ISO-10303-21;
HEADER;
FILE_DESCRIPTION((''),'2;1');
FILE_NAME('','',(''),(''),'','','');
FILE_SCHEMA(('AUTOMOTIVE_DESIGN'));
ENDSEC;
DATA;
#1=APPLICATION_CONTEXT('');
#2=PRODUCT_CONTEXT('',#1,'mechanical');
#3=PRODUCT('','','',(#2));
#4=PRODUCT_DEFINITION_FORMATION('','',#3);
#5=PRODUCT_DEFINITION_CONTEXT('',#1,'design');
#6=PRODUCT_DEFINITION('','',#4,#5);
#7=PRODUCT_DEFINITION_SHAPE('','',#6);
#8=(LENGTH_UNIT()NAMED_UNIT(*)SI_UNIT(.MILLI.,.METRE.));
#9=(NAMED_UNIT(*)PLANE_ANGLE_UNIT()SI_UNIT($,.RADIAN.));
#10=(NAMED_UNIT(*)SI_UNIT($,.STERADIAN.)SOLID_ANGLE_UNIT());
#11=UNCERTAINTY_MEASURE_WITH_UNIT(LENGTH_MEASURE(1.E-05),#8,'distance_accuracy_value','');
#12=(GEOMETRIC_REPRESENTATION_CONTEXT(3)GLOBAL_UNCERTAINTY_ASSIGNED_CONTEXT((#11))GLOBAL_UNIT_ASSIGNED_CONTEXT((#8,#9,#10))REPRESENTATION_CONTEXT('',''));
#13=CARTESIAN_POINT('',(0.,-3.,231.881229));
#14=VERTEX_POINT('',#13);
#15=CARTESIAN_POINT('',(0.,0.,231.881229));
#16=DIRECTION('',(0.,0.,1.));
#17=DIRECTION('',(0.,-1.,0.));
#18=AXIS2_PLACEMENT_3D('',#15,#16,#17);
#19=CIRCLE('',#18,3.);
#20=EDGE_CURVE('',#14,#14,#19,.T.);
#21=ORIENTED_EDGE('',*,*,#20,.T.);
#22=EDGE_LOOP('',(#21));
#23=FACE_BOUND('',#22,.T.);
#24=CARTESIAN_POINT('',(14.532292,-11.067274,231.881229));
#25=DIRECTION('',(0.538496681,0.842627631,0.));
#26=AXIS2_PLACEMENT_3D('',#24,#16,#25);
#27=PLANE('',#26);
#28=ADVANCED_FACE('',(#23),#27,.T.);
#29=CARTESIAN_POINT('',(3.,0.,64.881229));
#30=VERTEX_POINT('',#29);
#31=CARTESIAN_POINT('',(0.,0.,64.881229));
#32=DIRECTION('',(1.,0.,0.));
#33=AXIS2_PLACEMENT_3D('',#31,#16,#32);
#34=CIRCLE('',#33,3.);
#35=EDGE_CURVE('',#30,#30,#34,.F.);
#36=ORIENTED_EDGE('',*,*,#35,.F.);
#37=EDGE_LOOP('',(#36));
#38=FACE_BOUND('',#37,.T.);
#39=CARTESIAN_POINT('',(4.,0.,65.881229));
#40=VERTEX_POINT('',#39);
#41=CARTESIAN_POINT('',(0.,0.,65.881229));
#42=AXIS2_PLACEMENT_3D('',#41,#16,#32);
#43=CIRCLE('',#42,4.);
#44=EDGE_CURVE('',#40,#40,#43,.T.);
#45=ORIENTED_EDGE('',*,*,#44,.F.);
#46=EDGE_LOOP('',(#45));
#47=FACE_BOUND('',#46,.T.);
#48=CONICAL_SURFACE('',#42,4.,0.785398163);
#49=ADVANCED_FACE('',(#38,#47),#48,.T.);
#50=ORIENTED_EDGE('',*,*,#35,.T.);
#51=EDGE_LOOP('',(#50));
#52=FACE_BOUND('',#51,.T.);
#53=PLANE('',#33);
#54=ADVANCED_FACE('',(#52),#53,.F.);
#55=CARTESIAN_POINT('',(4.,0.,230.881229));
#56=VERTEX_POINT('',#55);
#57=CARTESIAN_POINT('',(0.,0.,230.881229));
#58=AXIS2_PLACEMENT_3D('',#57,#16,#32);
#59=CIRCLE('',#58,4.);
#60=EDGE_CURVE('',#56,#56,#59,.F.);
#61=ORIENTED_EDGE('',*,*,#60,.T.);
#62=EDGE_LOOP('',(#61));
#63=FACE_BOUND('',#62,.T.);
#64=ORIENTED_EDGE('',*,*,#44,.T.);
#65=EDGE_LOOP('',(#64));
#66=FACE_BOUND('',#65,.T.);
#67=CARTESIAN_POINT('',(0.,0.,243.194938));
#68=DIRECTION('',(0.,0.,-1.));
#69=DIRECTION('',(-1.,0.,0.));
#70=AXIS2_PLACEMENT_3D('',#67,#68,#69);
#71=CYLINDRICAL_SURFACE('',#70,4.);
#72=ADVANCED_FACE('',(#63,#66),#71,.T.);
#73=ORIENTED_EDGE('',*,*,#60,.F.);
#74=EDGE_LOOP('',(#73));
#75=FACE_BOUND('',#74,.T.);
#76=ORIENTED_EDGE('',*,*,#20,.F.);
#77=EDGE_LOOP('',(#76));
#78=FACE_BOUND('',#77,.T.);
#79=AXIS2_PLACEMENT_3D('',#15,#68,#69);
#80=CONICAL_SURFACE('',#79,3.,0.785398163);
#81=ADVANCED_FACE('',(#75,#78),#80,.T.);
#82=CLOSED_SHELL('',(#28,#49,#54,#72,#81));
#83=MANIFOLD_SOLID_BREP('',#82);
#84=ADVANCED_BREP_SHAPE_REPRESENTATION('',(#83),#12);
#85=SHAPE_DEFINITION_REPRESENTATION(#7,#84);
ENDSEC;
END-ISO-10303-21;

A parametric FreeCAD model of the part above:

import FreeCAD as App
import Part
import Sketcher
from FreeCAD import Vector
Q = App.Units.Quantity


def edges_at(feature, points):
    """Names of the edges that pass closest to the given points."""
    edges = feature.Shape.Edges
    near = lambda p: min(range(len(edges)), key=lambda i: edges[i].distToShape(Part.Vertex(*p))[0])
    return sorted({f"Edge{near(p) + 1}" for p in points})

doc = App.newDocument("Part")
body = doc.addObject("PartDesign::Body", "Body")

# Sketch on XY plane
sketch1 = body.newObject("Sketcher::SketchObject", "Sketch")
sketch1.AttachmentSupport = (doc.getObject("XY_Plane"), [""])
sketch1.MapMode = "FlatFace"
sketch1.AttachmentOffset = App.Placement(Vector(0, 0, 64.881229), App.Rotation())
sketch1.addGeometry(Part.Circle(Vector(0, 0, 0), Vector(0, 0, 1), 4), False)
sketch1.addConstraint(Sketcher.Constraint("Coincident", 0, 3, -1, 1))
sketch1.addConstraint(Sketcher.Constraint("Diameter", 0, Q("8 mm")))
pad1 = body.newObject("PartDesign::Pad", "Pad")
pad1.Profile = sketch1
pad1.Length = 167
doc.recompute()

chamfer = body.newObject("PartDesign::Chamfer", "Chamfer")
chamfer.Base = (pad1, edges_at(pad1, [(-4, 0, 64.881), (-4, 0, 231.881)]))
chamfer.Size = 1

doc.recompute()
